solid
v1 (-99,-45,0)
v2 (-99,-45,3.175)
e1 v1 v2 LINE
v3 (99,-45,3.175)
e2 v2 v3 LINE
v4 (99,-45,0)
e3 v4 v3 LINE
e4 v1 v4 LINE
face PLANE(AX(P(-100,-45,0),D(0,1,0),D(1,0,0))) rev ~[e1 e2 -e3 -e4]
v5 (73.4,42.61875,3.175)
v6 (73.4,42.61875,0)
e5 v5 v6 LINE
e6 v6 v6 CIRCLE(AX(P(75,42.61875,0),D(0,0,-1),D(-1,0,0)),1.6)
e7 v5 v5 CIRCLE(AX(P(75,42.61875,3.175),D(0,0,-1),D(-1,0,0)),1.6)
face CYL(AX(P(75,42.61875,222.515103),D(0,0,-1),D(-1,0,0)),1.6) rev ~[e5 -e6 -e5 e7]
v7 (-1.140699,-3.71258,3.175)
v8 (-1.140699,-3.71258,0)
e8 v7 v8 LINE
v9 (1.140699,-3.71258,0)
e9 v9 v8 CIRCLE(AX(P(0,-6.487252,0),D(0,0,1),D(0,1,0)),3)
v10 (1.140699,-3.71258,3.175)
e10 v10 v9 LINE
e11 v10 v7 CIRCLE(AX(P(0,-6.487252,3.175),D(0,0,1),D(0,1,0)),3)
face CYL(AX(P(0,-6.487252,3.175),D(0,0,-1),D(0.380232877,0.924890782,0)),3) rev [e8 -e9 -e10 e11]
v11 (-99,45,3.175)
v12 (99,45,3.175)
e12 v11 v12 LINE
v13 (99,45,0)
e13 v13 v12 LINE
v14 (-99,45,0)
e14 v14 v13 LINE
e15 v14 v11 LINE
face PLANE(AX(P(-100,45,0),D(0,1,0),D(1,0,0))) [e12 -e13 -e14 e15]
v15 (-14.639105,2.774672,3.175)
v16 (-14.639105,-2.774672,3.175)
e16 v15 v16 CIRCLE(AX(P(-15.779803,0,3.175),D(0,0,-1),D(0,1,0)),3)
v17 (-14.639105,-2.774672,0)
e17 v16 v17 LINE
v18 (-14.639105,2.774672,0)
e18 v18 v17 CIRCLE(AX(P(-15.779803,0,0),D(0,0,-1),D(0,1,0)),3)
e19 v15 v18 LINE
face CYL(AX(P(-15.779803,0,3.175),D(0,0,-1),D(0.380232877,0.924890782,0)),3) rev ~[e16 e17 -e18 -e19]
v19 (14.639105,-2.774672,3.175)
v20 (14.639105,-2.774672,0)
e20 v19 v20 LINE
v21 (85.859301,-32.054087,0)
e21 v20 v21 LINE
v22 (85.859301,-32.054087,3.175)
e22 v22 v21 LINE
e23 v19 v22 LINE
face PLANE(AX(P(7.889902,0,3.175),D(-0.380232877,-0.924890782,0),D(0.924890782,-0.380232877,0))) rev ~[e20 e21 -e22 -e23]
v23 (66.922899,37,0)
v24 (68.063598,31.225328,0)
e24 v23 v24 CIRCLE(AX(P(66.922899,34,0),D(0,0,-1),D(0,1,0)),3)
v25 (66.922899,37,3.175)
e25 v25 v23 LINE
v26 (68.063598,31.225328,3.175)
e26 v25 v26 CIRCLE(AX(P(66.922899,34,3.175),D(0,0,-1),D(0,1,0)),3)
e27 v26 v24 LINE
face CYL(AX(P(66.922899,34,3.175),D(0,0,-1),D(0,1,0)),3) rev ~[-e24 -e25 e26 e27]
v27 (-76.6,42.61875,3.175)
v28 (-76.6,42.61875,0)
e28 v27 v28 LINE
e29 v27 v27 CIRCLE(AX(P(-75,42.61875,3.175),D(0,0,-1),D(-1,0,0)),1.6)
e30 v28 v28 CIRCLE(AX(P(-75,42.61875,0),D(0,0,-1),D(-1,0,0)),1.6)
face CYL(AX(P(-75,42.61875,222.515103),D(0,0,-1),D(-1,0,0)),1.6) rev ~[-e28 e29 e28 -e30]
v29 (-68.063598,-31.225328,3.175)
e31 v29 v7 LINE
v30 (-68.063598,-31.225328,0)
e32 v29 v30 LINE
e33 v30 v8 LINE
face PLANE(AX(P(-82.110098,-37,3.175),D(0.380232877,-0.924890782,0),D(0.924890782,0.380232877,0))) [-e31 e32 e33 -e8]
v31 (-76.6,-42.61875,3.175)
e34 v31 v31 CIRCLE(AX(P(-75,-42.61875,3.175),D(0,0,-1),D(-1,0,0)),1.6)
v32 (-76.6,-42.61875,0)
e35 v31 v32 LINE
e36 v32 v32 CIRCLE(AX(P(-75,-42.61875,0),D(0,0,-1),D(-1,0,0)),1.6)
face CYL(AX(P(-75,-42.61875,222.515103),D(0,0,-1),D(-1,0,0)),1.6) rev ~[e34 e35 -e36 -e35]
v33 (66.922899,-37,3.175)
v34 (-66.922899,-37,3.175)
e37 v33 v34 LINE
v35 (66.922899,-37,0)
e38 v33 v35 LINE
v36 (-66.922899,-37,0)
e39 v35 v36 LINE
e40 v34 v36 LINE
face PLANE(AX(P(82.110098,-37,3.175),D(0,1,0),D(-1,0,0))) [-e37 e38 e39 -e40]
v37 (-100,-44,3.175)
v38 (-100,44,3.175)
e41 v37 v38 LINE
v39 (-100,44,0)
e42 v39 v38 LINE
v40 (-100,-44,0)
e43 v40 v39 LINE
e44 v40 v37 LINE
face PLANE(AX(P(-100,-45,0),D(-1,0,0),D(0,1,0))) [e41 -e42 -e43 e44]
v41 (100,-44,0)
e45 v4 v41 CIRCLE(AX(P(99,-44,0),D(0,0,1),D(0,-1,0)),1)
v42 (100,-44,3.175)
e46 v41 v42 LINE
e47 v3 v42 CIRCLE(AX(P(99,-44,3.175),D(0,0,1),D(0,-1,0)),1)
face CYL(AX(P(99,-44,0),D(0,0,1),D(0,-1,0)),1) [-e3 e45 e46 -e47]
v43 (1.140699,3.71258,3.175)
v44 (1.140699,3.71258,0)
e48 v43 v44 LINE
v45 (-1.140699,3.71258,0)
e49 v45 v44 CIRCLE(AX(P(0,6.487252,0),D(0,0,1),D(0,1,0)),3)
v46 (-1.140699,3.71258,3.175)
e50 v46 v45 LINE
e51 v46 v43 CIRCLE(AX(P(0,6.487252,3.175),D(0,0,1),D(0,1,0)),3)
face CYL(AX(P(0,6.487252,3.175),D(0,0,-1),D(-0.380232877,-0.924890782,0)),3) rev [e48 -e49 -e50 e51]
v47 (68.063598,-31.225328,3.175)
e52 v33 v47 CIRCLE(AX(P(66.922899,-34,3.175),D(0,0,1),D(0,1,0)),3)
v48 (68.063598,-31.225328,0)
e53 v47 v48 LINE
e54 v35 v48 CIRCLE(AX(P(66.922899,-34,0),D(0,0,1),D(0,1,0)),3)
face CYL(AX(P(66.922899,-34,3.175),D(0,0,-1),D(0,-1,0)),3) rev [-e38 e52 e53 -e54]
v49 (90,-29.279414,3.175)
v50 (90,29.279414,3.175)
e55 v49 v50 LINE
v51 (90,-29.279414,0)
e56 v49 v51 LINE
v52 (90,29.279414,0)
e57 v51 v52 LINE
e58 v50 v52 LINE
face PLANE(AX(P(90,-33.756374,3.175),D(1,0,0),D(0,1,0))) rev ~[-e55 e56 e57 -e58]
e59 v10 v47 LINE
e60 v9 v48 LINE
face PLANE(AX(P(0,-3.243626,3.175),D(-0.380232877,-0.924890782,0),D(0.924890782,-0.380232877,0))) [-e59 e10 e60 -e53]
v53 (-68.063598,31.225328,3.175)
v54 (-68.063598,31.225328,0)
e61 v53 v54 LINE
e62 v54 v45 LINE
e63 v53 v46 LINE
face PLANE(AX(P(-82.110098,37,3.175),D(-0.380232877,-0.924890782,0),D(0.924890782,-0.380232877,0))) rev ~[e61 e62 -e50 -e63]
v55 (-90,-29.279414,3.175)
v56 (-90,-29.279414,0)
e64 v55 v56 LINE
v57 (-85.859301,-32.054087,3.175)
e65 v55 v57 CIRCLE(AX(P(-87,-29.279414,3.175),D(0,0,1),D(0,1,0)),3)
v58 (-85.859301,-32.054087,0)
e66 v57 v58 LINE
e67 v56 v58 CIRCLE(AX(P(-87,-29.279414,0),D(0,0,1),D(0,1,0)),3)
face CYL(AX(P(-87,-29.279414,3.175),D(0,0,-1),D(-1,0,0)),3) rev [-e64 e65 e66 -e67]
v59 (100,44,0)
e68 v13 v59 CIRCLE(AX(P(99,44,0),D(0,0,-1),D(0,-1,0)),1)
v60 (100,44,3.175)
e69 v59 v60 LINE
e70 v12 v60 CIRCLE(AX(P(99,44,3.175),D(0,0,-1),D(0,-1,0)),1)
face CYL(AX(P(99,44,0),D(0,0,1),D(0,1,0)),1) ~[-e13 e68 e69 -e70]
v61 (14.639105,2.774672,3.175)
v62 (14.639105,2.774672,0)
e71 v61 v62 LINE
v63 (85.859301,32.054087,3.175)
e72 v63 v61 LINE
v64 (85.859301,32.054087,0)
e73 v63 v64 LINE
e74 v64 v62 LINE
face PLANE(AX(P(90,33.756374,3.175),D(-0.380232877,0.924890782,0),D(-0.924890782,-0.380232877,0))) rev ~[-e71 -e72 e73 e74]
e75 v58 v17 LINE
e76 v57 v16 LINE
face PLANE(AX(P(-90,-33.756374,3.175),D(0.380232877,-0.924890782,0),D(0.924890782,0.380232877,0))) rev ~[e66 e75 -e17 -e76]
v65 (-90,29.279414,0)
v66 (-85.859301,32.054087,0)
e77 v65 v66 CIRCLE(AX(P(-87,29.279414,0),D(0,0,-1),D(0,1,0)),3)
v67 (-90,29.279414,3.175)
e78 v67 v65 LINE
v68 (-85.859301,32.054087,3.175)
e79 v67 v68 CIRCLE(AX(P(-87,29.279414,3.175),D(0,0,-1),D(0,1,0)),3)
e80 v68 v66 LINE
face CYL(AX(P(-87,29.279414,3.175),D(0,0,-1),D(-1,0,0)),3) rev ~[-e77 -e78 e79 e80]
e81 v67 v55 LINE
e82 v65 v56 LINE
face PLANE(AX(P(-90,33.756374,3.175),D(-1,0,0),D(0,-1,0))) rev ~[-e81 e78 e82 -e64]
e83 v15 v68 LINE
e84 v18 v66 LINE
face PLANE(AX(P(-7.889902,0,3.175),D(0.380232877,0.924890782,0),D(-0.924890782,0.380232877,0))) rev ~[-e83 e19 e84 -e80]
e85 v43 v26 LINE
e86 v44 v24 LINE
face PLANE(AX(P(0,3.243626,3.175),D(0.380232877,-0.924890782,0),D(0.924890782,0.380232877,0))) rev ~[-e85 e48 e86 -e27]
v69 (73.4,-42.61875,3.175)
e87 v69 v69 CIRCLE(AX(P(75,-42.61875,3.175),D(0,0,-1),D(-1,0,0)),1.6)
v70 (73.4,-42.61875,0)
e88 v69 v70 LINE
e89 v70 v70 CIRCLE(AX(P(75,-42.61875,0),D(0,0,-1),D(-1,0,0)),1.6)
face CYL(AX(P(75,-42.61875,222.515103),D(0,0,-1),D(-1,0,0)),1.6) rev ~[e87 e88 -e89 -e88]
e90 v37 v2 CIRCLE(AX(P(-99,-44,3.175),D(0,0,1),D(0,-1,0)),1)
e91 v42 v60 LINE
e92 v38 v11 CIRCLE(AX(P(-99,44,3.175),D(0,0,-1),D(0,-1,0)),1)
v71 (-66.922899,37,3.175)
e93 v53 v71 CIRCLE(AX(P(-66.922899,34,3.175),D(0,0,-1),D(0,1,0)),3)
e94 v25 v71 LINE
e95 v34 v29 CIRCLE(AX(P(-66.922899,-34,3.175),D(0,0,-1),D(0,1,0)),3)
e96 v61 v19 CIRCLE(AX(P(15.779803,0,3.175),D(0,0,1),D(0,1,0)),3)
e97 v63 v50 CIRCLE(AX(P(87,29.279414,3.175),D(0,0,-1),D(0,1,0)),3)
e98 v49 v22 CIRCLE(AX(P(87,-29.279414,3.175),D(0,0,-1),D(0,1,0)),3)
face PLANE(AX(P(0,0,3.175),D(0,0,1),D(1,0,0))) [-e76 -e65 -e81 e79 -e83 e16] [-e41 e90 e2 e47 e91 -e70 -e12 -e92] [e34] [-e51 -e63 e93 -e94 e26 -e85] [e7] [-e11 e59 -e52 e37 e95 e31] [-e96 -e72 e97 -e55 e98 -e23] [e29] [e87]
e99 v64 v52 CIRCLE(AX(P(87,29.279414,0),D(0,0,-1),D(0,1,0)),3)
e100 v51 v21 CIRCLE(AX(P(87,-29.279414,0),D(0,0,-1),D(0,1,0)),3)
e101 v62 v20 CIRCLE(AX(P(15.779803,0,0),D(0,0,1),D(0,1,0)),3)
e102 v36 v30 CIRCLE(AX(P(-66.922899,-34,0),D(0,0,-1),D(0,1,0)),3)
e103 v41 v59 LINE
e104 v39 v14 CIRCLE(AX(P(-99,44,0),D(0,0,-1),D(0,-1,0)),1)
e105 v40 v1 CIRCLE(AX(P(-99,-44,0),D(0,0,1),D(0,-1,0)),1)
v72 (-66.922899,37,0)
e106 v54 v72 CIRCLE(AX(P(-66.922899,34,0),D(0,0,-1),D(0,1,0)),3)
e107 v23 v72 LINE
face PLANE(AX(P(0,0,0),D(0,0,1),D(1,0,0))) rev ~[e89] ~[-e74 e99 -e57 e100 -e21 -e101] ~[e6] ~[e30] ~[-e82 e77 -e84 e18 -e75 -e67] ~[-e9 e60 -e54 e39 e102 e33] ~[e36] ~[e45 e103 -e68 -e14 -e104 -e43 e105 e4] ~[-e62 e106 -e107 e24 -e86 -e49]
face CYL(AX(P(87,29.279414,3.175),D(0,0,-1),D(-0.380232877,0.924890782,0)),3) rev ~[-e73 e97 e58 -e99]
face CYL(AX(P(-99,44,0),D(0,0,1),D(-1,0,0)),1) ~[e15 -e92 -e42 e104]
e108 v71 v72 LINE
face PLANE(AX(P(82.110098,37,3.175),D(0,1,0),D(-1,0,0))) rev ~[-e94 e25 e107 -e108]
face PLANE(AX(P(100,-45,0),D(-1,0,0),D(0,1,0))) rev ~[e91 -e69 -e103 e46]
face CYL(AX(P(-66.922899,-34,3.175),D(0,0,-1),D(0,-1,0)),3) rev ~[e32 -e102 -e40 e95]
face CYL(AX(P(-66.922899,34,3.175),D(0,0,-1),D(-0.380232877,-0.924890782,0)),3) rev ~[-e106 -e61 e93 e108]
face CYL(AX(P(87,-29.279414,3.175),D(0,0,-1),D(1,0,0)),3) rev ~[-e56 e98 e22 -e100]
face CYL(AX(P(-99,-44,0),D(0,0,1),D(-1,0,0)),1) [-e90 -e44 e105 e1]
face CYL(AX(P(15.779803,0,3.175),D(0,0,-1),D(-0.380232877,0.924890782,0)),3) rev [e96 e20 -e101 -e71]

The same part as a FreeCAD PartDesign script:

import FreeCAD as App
import Part
import Sketcher
Q = App.Units.Quantity


def edges_at(feature, points):
    """Names of the edges that pass closest to the given points."""
    edges = feature.Shape.Edges
    near = lambda p: min(range(len(edges)), key=lambda i: edges[i].distToShape(Part.Vertex(*p))[0])
    return sorted({f"Edge{near(p) + 1}" for p in points})


def add_polygon(sketch, points):
    """Adds a closed chain of lines whose ends are joined by coincident constraints."""
    first, n = sketch.GeometryCount, len(points)
    for a, b in zip(points, points[1:] + points[:1]):
        sketch.addGeometry(Part.LineSegment(App.Vector(*a, 0), App.Vector(*b, 0)), False)
    for i in range(n):
        sketch.addConstraint(Sketcher.Constraint("Coincident", first + i, 2, first + (i + 1) % n, 1))

doc = App.newDocument("Part")
params = doc.addObject("Spreadsheet::Sheet", "Params")
for row, (alias, value) in enumerate([
    ("sketch1_width", "200 mm"),
    ("sketch1_height", "90 mm"),
    ("pad1_length", "3.175 mm"),
    ("sketch3_diameter", "3.2 mm"),
    ("hole_diameter", "3.2 mm"),
    ("fillet_radius", "3 mm"),
    ("fillet2_radius", "1 mm"),
], start=1):
    params.set(f"A{row}", alias)
    params.set(f"B{row}", "=" + value)
    params.setAlias(f"B{row}", alias)

body = doc.addObject("PartDesign::Body", "Body")

# Sketch on XY plane
sketch1 = body.newObject("Sketcher::SketchObject", "Sketch")
sketch1.AttachmentSupport = (doc.getObject("XY_Plane"), [""])
sketch1.MapMode = "FlatFace"
add_polygon(sketch1, [(-100, 45), (-100, -45), (100, -45), (100, 45)])  # lines 0-3
sketch1.addConstraint([
    Sketcher.Constraint("Vertical", 0),
    Sketcher.Constraint("Horizontal", 1),
    Sketcher.Constraint("Vertical", 2),
    Sketcher.Constraint("Horizontal", 3),
    Sketcher.Constraint("Symmetric", 0, 2, 2, 2, -1, 1),
    Sketcher.Constraint("DistanceX", 1, 1, 1, 2, Q("200 mm")),
    Sketcher.Constraint("DistanceY", 0, 2, 0, 1, Q("90 mm")),
])
sketch1.setExpression("Constraints[9]", "Params.sketch1_width")
sketch1.setExpression("Constraints[10]", "Params.sketch1_height")
pad1 = body.newObject("PartDesign::Pad", "Pad")
pad1.Profile = sketch1
pad1.setExpression("Length", "Params.pad1_length")

# Sketch on XY plane
sketch2 = body.newObject("Sketcher::SketchObject", "Sketch001")
sketch2.AttachmentSupport = (doc.getObject("XY_Plane"), [""])
sketch2.MapMode = "FlatFace"
sketch2.AttachmentOffset = App.Placement(App.Vector(0, 0, 3.175), App.Rotation())
add_polygon(sketch2, [(-90, 34), (-90, -34), (-8, 0)])  # lines 0-2
add_polygon(sketch2, [(-82, 37), (0, 3), (82, 37)])  # lines 3-5
add_polygon(sketch2, [(90, 34), (8, 0), (90, -34)])  # lines 6-8
add_polygon(sketch2, [(0, -3), (-82, -37), (82, -37)])  # lines 9-11
sketch2.addConstraint([
    Sketcher.Constraint("Vertical", 0),
    Sketcher.Constraint("Horizontal", 5),
    Sketcher.Constraint("Vertical", 8),
    Sketcher.Constraint("Horizontal", 10),
    Sketcher.Constraint("Symmetric", 1, 2, 6, 2, -1, 1),
    Sketcher.Constraint("Symmetric", 2, 2, 7, 2, -1, 1),
    Sketcher.Constraint("Symmetric", 4, 2, 9, 2, -1, 1),
    Sketcher.Constraint("Symmetric", 3, 2, 11, 2, -1, 1),
    Sketcher.Constraint("PointOnObject", 1, 2, -1),
    Sketcher.Constraint("PointOnObject", 3, 2, -2),
    Sketcher.Constraint("Parallel", 2, 3),
    Sketcher.Constraint("Parallel", 1, 4),
    Sketcher.Constraint("Parallel", 4, 6),
    Sketcher.Constraint("Parallel", 7, 11),
    Sketcher.Constraint("Horizontal", 0, 2, 7, 2),
    Sketcher.Constraint("Equal", 2, 3),
    Sketcher.Constraint("DistanceX", 0, 2, -1, 1, Q("90 mm")),
    Sketcher.Constraint("DistanceY", -1, 1, 4, 2, Q("37 mm")),
    Sketcher.Constraint("DistanceX", 1, 2, -1, 1, Q("7.889902 mm")),
    Sketcher.Constraint("DistanceY", 0, 2, 0, 1, Q("67.512748 mm")),
])
pocket1 = body.newObject("PartDesign::Pocket", "Pocket")
pocket1.Profile = sketch2
pocket1.Type = "ThroughAll"

# Sketch on XY plane
sketch3 = body.newObject("Sketcher::SketchObject", "Sketch002")
sketch3.AttachmentSupport = (doc.getObject("XY_Plane"), [""])
sketch3.MapMode = "FlatFace"
sketch3.AttachmentOffset = App.Placement(App.Vector(0, 0, 3.175), App.Rotation())
sketch3.addGeometry([
    Part.Circle(App.Vector(-75, 42.6, 0), App.Vector(0, 0, 1), 1.6),
    Part.Circle(App.Vector(75, 42.6, 0), App.Vector(0, 0, 1), 1.6),
    Part.Circle(App.Vector(75, -42.6, 0), App.Vector(0, 0, 1), 1.6),
    Part.Circle(App.Vector(-75, -42.6, 0), App.Vector(0, 0, 1), 1.6),
], False)
sketch3.addConstraint([
    Sketcher.Constraint("Equal", 0, 1),
    Sketcher.Constraint("Equal", 1, 2),
    Sketcher.Constraint("Equal", 2, 3),
    Sketcher.Constraint("Symmetric", 0, 3, 2, 3, -1, 1),
    Sketcher.Constraint("Symmetric", 1, 3, 3, 3, -1, 1),
    Sketcher.Constraint("Symmetric", 0, 3, 1, 3, -2),
    Sketcher.Constraint("Diameter", 0, Q("3.2 mm")),
    Sketcher.Constraint("DistanceX", 0, 3, -1, 1, Q("75 mm")),
    Sketcher.Constraint("DistanceY", 2, 3, 1, 3, Q("85.2375 mm")),
])
sketch3.setExpression("Constraints[6]", "Params.sketch3_diameter")
doc.recompute()
hole = body.newObject("PartDesign::Hole", "Hole")
hole.Profile = sketch3
hole.ThreadType = "None"
hole.setExpression("Diameter", "Params.hole_diameter")
hole.DepthType = "ThroughAll"
doc.recompute()

fillet = body.newObject("PartDesign::Fillet", "Fillet")
fillet.Base = (hole, edges_at(hole, [
    (-82.11, 37, 1.587),
    (82.11, 37, 1.587),
    (0, 3.244, 1.587),
    (82.11, -37, 1.587),
    (-82.11, -37, 1.587),
    (0, -3.244, 1.587),
    (90, 33.756, 1.587),
    (90, -33.756, 1.587),
    (7.89, 0, 1.587),
    (-90, 33.756, 1.587),
    (-7.89, 0, 1.587),
    (-90, -33.756, 1.587),
]))
fillet.setExpression("Radius", "Params.fillet_radius")
doc.recompute()

fillet2 = body.newObject("PartDesign::Fillet", "Fillet001")
fillet2.Base = (fillet, edges_at(fillet, [
    (100, -45, 1.587),
    (-100, -45, 1.587),
    (-100, 45, 1.587),
    (100, 45, 1.587),
]))
fillet2.setExpression("Radius", "Params.fillet2_radius")

doc.recompute()
